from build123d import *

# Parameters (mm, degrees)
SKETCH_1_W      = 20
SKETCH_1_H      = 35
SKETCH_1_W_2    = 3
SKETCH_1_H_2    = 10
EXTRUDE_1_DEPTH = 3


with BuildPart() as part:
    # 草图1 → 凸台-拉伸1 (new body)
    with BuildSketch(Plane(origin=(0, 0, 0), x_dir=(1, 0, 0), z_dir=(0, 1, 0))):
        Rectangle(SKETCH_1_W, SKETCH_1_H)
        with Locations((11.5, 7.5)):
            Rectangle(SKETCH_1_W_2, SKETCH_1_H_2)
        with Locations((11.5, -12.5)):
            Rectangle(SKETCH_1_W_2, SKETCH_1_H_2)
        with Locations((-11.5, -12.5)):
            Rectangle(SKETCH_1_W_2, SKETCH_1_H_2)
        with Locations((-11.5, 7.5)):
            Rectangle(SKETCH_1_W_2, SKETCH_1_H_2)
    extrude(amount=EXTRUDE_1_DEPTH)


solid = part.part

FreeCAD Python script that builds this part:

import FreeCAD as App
import Part
import Sketcher
Q = App.Units.Quantity

doc = App.newDocument("Part")
body = doc.addObject("PartDesign::Body", "Body")

sketch1 = body.newObject("Sketcher::SketchObject", "Sketch")
sketch1.AttachmentSupport = (doc.getObject("XZ_Plane"), [""])
sketch1.MapMode = "FlatFace"
sketch1.addGeometry(Part.LineSegment(App.Vector(-10, -2.5, 0), App.Vector(-10, 7.5, 0)), False)
sketch1.addGeometry(Part.LineSegment(App.Vector(-10, 7.5, 0), App.Vector(-13, 7.5, 0)), False)
sketch1.addGeometry(Part.LineSegment(App.Vector(-13, 7.5, 0), App.Vector(-13, 17.5, 0)), False)
sketch1.addGeometry(Part.LineSegment(App.Vector(-13, 17.5, 0), App.Vector(13, 17.5, 0)), False)
sketch1.addGeometry(Part.LineSegment(App.Vector(13, 17.5, 0), App.Vector(13, 7.5, 0)), False)
sketch1.addGeometry(Part.LineSegment(App.Vector(13, 7.5, 0), App.Vector(10, 7.5, 0)), False)
sketch1.addGeometry(Part.LineSegment(App.Vector(10, 7.5, 0), App.Vector(10, -2.5, 0)), False)
sketch1.addGeometry(Part.LineSegment(App.Vector(10, -2.5, 0), App.Vector(13, -2.5, 0)), False)
sketch1.addGeometry(Part.LineSegment(App.Vector(13, -2.5, 0), App.Vector(13, -12.5, 0)), False)
sketch1.addGeometry(Part.LineSegment(App.Vector(13, -12.5, 0), App.Vector(10, -12.5, 0)), False)
sketch1.addGeometry(Part.LineSegment(App.Vector(10, -12.5, 0), App.Vector(10, -17.5, 0)), False)
sketch1.addGeometry(Part.LineSegment(App.Vector(10, -17.5, 0), App.Vector(-10, -17.5, 0)), False)
sketch1.addGeometry(Part.LineSegment(App.Vector(-10, -17.5, 0), App.Vector(-10, -12.5, 0)), False)
sketch1.addGeometry(Part.LineSegment(App.Vector(-10, -12.5, 0), App.Vector(-13, -12.5, 0)), False)
sketch1.addGeometry(Part.LineSegment(App.Vector(-13, -12.5, 0), App.Vector(-13, -2.5, 0)), False)
sketch1.addGeometry(Part.LineSegment(App.Vector(-13, -2.5, 0), App.Vector(-10, -2.5, 0)), False)
sketch1.addConstraint(Sketcher.Constraint("Coincident", 0, 2, 1, 1))
sketch1.addConstraint(Sketcher.Constraint("Coincident", 1, 2, 2, 1))
sketch1.addConstraint(Sketcher.Constraint("Coincident", 2, 2, 3, 1))
sketch1.addConstraint(Sketcher.Constraint("Coincident", 3, 2, 4, 1))
sketch1.addConstraint(Sketcher.Constraint("Coincident", 4, 2, 5, 1))
sketch1.addConstraint(Sketcher.Constraint("Coincident", 5, 2, 6, 1))
sketch1.addConstraint(Sketcher.Constraint("Coincident", 6, 2, 7, 1))
sketch1.addConstraint(Sketcher.Constraint("Coincident", 7, 2, 8, 1))
sketch1.addConstraint(Sketcher.Constraint("Coincident", 8, 2, 9, 1))
sketch1.addConstraint(Sketcher.Constraint("Coincident", 9, 2, 10, 1))
sketch1.addConstraint(Sketcher.Constraint("Coincident", 10, 2, 11, 1))
sketch1.addConstraint(Sketcher.Constraint("Coincident", 11, 2, 12, 1))
sketch1.addConstraint(Sketcher.Constraint("Coincident", 12, 2, 13, 1))
sketch1.addConstraint(Sketcher.Constraint("Coincident", 13, 2, 14, 1))
sketch1.addConstraint(Sketcher.Constraint("Coincident", 14, 2, 15, 1))
sketch1.addConstraint(Sketcher.Constraint("Coincident", 15, 2, 0, 1))
sketch1.addConstraint(Sketcher.Constraint("Vertical", 0))
sketch1.addConstraint(Sketcher.Constraint("Horizontal", 1))
sketch1.addConstraint(Sketcher.Constraint("Vertical", 2))
sketch1.addConstraint(Sketcher.Constraint("Horizontal", 3))
sketch1.addConstraint(Sketcher.Constraint("Vertical", 4))
sketch1.addConstraint(Sketcher.Constraint("Horizontal", 5))
sketch1.addConstraint(Sketcher.Constraint("Vertical", 6))
sketch1.addConstraint(Sketcher.Constraint("Horizontal", 7))
sketch1.addConstraint(Sketcher.Constraint("Vertical", 8))
sketch1.addConstraint(Sketcher.Constraint("Horizontal", 9))
sketch1.addConstraint(Sketcher.Constraint("Vertical", 10))
sketch1.addConstraint(Sketcher.Constraint("Horizontal", 11))
sketch1.addConstraint(Sketcher.Constraint("Vertical", 12))
sketch1.addConstraint(Sketcher.Constraint("Horizontal", 13))
sketch1.addConstraint(Sketcher.Constraint("Vertical", 14))
sketch1.addConstraint(Sketcher.Constraint("Horizontal", 15))
sketch1.addConstraint(Sketcher.Constraint("Symmetric", 1, 2, 4, 2, -2))
sketch1.addConstraint(Sketcher.Constraint("Symmetric", 9, 2, 12, 2, -2))
sketch1.addConstraint(Sketcher.Constraint("Symmetric", 7, 2, 14, 2, -2))
sketch1.addConstraint(Sketcher.Constraint("Vertical", 4, 2, 7, 2))
sketch1.addConstraint(Sketcher.Constraint("Vertical", 6, 2, 9, 2))
sketch1.addConstraint(Sketcher.Constraint("Vertical", 0, 2, 11, 2))
sketch1.addConstraint(Sketcher.Constraint("Equal", 0, 2))
sketch1.addConstraint(Sketcher.Constraint("Equal", 6, 8))
sketch1.addConstraint(Sketcher.Constraint("DistanceX", 1, 2, 1, 1, Q("3 mm")))
sketch1.addConstraint(Sketcher.Constraint("DistanceX", 3, 1, 3, 2, Q("26 mm")))
sketch1.addConstraint(Sketcher.Constraint("DistanceY", 0, 1, 0, 2, Q("10 mm")))
sketch1.addConstraint(Sketcher.Constraint("DistanceY", 10, 2, 10, 1, Q("5 mm")))
sketch1.addConstraint(Sketcher.Constraint("DistanceY", -1, 1, 0, 2, Q("7.5 mm")))
pad1 = body.newObject("PartDesign::Pad", "Pad")
pad1.Profile = sketch1
pad1.Length = 3
pad1.Reversed = True

doc.recompute()
